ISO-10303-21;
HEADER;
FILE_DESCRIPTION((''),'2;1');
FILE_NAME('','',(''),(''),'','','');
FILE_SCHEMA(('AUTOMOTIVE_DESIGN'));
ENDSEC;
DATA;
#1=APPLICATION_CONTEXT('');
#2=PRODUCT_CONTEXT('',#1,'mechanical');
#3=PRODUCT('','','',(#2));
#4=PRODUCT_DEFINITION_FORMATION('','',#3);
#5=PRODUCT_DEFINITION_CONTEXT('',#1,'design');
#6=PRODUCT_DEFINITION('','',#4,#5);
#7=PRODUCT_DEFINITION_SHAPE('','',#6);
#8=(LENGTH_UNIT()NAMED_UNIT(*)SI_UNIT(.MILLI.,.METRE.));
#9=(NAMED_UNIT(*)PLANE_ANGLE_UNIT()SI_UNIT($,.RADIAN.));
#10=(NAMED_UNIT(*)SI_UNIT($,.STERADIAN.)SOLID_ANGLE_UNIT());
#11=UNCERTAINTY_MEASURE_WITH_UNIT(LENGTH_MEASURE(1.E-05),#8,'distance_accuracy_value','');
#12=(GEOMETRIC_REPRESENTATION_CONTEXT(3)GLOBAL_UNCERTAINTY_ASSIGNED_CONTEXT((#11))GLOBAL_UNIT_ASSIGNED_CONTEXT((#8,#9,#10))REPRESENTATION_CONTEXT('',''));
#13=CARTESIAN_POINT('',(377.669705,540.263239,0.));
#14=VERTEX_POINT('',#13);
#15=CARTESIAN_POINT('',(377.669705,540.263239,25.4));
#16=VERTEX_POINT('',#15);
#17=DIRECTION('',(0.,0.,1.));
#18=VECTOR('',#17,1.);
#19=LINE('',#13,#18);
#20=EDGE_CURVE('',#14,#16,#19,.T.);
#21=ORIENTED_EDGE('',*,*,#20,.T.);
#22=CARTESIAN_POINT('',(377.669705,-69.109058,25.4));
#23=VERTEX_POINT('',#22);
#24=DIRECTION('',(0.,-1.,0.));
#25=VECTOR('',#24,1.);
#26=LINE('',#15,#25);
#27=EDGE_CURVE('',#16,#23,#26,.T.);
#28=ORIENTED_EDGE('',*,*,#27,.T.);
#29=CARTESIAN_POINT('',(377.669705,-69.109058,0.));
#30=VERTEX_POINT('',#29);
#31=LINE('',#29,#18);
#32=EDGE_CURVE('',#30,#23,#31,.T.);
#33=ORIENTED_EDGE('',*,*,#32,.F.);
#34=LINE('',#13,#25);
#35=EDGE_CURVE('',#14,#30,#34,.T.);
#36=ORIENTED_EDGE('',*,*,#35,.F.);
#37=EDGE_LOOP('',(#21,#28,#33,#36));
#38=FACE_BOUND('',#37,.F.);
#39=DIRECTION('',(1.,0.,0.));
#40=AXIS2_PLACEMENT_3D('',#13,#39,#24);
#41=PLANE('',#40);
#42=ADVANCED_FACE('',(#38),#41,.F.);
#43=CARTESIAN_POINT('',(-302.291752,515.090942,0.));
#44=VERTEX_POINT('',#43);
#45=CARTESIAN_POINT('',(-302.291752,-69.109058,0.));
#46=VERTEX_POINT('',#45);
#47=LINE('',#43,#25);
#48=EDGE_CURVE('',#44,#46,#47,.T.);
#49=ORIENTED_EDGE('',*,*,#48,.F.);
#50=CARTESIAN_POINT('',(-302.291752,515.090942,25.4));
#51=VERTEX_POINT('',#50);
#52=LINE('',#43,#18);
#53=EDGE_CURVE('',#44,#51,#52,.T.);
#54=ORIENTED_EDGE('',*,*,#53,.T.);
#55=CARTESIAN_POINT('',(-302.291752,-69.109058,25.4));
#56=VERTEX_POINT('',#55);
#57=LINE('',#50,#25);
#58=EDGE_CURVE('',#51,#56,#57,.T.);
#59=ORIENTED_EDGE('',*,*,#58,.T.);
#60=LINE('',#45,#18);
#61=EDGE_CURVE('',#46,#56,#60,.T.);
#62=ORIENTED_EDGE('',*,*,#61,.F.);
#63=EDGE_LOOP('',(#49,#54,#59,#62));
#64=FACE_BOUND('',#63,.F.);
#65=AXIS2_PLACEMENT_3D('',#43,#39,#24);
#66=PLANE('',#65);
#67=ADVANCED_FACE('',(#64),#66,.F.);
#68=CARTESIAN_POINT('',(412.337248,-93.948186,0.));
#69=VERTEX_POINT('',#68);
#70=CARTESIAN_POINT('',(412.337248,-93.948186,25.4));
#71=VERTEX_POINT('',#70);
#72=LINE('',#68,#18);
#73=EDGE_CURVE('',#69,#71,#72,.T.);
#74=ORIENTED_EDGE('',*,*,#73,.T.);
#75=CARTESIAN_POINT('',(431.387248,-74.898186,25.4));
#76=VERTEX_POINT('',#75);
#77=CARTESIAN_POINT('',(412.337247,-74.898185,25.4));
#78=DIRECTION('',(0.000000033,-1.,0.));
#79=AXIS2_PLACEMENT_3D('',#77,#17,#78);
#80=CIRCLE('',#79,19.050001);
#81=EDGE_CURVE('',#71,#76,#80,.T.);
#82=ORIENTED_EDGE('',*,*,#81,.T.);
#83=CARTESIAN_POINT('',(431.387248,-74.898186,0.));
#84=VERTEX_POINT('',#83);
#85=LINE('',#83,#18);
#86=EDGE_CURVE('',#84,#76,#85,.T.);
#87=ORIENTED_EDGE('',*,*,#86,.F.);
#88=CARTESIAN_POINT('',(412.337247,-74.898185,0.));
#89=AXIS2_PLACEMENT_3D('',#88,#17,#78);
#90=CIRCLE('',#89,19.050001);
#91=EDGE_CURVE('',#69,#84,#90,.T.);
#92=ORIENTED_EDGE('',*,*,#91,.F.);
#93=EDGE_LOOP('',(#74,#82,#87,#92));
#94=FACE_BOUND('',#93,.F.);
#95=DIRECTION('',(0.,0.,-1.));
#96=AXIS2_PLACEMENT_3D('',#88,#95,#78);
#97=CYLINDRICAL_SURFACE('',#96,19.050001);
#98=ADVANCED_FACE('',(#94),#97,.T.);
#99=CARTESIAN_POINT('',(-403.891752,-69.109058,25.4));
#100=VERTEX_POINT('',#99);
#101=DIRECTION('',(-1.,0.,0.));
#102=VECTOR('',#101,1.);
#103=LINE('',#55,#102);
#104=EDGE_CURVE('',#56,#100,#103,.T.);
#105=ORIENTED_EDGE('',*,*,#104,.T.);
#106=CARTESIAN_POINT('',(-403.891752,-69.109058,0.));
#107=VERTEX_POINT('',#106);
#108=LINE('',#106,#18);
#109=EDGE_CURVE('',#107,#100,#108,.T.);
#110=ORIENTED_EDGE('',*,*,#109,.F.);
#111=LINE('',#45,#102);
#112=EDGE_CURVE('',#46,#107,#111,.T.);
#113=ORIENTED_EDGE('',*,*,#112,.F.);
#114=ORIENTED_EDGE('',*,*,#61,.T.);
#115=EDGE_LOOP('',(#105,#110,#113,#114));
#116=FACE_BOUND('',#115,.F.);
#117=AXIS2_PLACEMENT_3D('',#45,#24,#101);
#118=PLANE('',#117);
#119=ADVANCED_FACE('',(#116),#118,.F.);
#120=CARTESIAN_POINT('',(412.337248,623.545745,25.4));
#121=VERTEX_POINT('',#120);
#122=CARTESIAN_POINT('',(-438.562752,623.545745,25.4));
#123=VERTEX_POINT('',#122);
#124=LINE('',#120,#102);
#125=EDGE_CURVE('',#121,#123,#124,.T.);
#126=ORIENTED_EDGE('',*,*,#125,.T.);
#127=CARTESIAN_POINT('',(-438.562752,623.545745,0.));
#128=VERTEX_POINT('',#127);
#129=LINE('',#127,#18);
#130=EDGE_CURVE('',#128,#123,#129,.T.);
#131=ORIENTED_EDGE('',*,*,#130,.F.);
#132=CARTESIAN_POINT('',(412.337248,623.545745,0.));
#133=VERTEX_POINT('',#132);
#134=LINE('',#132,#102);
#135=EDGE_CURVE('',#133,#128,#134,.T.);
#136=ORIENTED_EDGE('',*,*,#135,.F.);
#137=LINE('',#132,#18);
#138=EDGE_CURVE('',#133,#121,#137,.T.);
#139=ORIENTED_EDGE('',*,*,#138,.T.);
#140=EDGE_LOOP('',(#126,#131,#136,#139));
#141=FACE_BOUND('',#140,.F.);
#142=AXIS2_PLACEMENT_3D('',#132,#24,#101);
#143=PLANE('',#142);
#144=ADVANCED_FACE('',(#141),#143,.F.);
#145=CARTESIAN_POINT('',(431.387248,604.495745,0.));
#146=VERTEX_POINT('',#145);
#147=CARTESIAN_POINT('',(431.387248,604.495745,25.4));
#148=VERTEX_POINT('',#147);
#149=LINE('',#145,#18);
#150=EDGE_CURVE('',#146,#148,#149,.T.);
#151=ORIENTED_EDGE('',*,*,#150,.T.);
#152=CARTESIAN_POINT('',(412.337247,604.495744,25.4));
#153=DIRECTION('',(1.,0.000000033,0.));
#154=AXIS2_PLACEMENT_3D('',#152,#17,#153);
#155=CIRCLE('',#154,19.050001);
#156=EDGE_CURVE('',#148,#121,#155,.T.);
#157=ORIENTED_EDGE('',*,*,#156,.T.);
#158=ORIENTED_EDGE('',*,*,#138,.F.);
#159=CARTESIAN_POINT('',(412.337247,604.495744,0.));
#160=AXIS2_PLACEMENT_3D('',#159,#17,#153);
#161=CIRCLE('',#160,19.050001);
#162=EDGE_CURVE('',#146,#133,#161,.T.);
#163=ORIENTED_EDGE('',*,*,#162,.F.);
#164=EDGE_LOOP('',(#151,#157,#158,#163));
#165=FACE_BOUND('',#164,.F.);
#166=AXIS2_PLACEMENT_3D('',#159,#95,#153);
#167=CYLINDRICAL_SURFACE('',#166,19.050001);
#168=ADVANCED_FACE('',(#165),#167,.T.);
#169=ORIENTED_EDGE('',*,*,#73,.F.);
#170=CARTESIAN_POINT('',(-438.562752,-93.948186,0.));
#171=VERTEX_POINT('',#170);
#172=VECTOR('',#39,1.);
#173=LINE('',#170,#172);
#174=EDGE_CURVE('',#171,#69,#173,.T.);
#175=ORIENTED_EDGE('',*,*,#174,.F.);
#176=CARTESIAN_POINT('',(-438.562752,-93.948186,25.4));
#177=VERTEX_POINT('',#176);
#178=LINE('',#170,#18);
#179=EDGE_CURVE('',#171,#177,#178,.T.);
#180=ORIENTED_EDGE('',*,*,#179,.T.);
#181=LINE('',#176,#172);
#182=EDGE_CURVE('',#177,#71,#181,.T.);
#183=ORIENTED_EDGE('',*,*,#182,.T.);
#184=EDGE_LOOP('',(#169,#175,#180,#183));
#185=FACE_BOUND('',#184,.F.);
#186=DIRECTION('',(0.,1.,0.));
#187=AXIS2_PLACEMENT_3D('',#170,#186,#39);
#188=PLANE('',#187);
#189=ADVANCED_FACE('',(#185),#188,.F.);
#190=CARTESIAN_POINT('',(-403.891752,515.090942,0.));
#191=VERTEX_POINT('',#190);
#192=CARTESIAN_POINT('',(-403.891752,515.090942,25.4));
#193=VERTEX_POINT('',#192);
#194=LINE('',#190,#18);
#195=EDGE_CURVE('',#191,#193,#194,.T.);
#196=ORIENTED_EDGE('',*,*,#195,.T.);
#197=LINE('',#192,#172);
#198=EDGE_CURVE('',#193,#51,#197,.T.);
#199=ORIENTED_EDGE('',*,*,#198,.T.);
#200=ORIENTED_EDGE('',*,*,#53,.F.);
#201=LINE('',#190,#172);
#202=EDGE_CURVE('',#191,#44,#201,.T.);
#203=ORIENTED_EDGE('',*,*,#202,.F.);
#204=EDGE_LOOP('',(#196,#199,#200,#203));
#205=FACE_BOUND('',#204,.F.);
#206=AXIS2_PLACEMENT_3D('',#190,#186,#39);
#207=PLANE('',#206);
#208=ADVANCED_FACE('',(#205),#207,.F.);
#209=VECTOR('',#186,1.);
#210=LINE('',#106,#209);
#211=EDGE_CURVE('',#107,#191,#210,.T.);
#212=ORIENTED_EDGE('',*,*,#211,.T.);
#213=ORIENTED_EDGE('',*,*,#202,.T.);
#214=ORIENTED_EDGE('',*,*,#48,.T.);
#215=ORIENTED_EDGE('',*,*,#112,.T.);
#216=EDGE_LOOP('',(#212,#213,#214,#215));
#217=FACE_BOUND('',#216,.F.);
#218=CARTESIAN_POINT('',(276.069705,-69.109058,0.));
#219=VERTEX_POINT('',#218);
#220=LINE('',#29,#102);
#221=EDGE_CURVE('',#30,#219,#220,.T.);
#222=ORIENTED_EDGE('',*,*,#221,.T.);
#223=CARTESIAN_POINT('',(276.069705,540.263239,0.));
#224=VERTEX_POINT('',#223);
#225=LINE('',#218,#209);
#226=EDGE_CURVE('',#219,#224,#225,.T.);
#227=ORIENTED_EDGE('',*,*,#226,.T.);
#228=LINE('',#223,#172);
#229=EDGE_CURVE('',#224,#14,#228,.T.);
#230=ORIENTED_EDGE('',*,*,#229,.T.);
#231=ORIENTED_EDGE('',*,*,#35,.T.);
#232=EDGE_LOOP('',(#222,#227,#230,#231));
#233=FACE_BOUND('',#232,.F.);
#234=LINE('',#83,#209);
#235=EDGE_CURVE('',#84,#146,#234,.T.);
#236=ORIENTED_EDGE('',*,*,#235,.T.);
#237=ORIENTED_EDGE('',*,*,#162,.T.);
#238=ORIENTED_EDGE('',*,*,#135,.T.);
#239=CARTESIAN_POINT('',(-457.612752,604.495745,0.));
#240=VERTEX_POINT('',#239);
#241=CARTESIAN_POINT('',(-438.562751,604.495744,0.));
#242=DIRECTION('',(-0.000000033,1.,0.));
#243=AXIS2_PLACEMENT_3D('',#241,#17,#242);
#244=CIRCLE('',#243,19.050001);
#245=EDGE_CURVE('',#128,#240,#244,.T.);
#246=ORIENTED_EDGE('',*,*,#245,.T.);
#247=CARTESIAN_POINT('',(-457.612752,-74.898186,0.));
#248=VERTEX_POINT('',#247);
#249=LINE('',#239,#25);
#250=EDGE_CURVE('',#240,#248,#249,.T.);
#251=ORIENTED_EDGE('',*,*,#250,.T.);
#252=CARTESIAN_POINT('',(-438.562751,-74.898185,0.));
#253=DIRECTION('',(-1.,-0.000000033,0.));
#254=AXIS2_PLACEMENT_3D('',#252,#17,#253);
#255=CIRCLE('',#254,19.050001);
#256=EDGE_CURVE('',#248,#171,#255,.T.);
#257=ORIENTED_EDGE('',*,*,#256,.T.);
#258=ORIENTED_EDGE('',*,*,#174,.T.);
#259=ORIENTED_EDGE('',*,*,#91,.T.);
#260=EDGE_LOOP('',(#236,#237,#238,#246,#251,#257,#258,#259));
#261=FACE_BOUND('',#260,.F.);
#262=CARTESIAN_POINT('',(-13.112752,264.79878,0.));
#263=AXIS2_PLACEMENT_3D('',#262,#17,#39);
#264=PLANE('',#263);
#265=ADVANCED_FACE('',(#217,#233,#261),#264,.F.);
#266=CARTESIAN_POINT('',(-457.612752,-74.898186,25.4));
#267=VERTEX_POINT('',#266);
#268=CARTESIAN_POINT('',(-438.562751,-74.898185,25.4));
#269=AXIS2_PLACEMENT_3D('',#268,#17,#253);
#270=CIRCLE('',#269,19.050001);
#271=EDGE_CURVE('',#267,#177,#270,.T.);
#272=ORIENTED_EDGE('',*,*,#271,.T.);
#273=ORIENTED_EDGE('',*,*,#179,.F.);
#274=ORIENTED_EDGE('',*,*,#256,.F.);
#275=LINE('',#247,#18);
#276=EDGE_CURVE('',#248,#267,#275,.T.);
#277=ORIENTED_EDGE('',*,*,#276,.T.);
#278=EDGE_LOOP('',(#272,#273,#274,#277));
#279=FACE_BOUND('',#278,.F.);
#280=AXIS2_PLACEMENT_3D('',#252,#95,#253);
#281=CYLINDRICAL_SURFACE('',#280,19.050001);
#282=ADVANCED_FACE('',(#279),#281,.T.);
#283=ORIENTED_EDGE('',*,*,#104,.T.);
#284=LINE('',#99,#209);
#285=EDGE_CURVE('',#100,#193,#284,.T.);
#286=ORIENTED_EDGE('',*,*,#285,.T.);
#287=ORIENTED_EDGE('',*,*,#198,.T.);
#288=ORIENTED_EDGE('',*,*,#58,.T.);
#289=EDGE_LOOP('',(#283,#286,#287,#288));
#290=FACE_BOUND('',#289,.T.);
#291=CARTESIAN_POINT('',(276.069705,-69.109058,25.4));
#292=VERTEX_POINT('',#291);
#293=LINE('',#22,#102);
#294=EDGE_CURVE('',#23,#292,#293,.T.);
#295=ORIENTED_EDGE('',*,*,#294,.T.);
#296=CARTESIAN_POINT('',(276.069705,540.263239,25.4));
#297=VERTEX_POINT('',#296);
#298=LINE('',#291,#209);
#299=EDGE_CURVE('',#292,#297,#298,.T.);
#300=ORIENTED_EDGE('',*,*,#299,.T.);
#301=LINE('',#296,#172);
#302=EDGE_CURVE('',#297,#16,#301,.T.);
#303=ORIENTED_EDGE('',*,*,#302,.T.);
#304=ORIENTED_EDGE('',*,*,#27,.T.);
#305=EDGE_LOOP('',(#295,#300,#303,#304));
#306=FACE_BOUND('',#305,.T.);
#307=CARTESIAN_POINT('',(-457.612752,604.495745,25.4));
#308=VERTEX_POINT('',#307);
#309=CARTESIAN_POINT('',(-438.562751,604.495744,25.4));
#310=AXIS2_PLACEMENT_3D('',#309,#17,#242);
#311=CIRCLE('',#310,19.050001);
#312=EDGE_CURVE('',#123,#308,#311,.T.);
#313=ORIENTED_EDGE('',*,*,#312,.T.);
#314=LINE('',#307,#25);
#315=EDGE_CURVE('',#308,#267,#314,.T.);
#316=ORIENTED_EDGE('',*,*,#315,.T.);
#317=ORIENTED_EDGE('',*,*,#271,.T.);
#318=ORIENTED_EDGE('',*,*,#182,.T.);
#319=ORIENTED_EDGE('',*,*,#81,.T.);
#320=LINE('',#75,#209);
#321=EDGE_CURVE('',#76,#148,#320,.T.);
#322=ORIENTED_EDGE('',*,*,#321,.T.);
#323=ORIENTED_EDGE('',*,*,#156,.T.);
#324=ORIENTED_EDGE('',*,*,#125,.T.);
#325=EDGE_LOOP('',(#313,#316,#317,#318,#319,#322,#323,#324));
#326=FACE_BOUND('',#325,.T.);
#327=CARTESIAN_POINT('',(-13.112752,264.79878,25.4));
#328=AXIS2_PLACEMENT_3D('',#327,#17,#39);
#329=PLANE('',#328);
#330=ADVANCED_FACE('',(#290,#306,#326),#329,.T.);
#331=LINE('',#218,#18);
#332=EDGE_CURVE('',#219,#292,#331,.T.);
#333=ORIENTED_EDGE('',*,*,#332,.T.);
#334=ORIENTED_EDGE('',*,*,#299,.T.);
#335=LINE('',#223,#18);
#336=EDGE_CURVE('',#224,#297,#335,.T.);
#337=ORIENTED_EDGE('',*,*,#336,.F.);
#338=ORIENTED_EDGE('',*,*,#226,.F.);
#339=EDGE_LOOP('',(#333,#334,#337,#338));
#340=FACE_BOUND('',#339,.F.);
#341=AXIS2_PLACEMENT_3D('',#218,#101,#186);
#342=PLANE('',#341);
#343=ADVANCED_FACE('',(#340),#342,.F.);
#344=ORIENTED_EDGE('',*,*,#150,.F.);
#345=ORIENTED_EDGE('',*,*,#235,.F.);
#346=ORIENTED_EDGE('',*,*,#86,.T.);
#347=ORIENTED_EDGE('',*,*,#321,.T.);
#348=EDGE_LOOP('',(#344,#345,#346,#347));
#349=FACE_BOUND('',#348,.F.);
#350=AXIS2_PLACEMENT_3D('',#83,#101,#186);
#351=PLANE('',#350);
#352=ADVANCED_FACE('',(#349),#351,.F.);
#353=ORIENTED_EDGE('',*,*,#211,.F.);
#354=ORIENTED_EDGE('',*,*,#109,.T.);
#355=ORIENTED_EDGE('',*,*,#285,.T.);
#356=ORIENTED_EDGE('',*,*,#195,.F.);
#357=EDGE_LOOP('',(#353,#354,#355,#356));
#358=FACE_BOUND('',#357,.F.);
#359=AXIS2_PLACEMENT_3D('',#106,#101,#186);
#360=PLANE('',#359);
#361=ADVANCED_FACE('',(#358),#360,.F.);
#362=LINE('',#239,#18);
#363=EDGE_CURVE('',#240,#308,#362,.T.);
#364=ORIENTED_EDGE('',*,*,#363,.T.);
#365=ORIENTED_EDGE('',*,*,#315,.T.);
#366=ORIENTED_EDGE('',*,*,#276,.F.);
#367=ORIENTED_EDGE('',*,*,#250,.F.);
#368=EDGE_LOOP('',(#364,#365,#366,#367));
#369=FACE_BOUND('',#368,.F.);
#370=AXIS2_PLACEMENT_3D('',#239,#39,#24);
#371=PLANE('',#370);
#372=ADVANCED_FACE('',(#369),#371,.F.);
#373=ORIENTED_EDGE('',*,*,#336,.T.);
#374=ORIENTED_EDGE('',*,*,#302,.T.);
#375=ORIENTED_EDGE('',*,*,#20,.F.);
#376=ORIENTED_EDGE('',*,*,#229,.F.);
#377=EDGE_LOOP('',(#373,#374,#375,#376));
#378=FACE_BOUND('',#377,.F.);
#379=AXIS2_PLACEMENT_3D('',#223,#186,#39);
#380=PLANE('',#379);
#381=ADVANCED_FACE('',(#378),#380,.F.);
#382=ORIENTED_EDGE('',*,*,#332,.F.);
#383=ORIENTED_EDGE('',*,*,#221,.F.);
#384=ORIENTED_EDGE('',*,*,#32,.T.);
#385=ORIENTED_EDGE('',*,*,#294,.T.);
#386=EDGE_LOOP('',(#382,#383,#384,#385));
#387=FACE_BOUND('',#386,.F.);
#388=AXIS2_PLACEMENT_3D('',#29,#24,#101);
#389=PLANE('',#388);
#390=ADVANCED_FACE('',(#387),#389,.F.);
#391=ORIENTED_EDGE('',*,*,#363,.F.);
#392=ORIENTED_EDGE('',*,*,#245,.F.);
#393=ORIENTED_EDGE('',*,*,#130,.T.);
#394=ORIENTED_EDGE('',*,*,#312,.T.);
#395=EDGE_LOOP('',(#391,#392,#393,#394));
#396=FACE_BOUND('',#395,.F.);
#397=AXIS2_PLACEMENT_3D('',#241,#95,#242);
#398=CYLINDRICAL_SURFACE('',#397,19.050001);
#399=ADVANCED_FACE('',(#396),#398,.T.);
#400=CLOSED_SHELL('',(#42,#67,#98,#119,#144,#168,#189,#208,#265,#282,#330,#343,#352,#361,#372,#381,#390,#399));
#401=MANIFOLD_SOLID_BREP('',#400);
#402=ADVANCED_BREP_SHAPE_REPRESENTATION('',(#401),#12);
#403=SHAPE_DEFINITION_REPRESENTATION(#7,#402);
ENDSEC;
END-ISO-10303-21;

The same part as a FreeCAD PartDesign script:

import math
import FreeCAD as App
import Part
import Sketcher

V = App.Vector
Q = App.Units.Quantity

doc = App.newDocument("Part")
params = doc.addObject("Spreadsheet::Sheet", "Params")
for row, (alias, value) in enumerate([
    ("sketch1_width", "4 in"),
    ("sketch1_height", "23 in"),
    ("sketch1_radius", "0.75 in"),
    ("sketch1_width2", "33.5 in"),
    ("pad1_length", "1 in"),
], start=1):
    params.set(f"A{row}", alias)
    params.set(f"B{row}", "=" + value)
    params.setAlias(f"B{row}", alias)

body = doc.addObject("PartDesign::Body", "Body")

# Sketch on XY plane
sketch1 = body.newObject("Sketcher::SketchObject", "Sketch")
sketch1.AttachmentSupport = (doc.getObject("XY_Plane"), [""])
sketch1.MapMode = "FlatFace"
sketch1.addGeometry([
    Part.ArcOfCircle(Part.Circle(V(-438.562751, -74.898185, 0), V(0, 0, 1), 19.050001), math.radians(-179.999998), math.radians(-90.000002)),  # 0
    Part.LineSegment(V(-438.562752, -93.948186, 0), V(412.337248, -93.948186, 0)),  # 1
    Part.ArcOfCircle(Part.Circle(V(412.337247, -74.898185, 0), V(0, 0, 1), 19.050001), math.radians(-89.999998), math.radians(-0.000002)),  # 2
    Part.LineSegment(V(431.387248, -74.898186, 0), V(431.387248, 604.495745, 0)),  # 3
    Part.ArcOfCircle(Part.Circle(V(412.337247, 604.495744, 0), V(0, 0, 1), 19.050001), math.radians(0.000002), math.radians(89.999998)),  # 4
    Part.LineSegment(V(412.337248, 623.545745, 0), V(-438.562752, 623.545745, 0)),  # 5
    Part.ArcOfCircle(Part.Circle(V(-438.562751, 604.495744, 0), V(0, 0, 1), 19.050001), math.radians(90.000002), math.radians(179.999998)),  # 6
    Part.LineSegment(V(-457.612752, 604.495745, 0), V(-457.612752, -74.898186, 0)),  # 7
    Part.LineSegment(V(-302.291752, -69.109058, 0), V(-403.891752, -69.109058, 0)),  # 8
    Part.LineSegment(V(-403.891752, -69.109058, 0), V(-403.891752, 515.090942, 0)),  # 9
    Part.LineSegment(V(-403.891752, 515.090942, 0), V(-302.291752, 515.090942, 0)),  # 10
    Part.LineSegment(V(-302.291752, 515.090942, 0), V(-302.291752, -69.109058, 0)),  # 11
    Part.LineSegment(V(377.669705, 540.263239, 0), V(377.669705, -69.109058, 0)),  # 12
    Part.LineSegment(V(377.669705, -69.109058, 0), V(276.069705, -69.109058, 0)),  # 13
    Part.LineSegment(V(276.069705, -69.109058, 0), V(276.069705, 540.263239, 0)),  # 14
    Part.LineSegment(V(276.069705, 540.263239, 0), V(377.669705, 540.263239, 0)),  # 15
], False)
sketch1.addConstraint([
    Sketcher.Constraint("Tangent", 0, 2, 1, 1),
    Sketcher.Constraint("Tangent", 1, 2, 2, 1),
    Sketcher.Constraint("Tangent", 2, 2, 3, 1),
    Sketcher.Constraint("Tangent", 3, 2, 4, 1),
    Sketcher.Constraint("Tangent", 4, 2, 5, 1),
    Sketcher.Constraint("Tangent", 5, 2, 6, 1),
    Sketcher.Constraint("Tangent", 6, 2, 7, 1),
    Sketcher.Constraint("Tangent", 7, 2, 0, 1),
    Sketcher.Constraint("Coincident", 8, 2, 9, 1),
    Sketcher.Constraint("Coincident", 9, 2, 10, 1),
    Sketcher.Constraint("Coincident", 10, 2, 11, 1),
    Sketcher.Constraint("Coincident", 11, 2, 8, 1),
    Sketcher.Constraint("Coincident", 12, 2, 13, 1),
    Sketcher.Constraint("Coincident", 13, 2, 14, 1),
    Sketcher.Constraint("Coincident", 14, 2, 15, 1),
    Sketcher.Constraint("Coincident", 15, 2, 12, 1),
    Sketcher.Constraint("Horizontal", 1),
    Sketcher.Constraint("Vertical", 3),
    Sketcher.Constraint("Horizontal", 5),
    Sketcher.Constraint("Vertical", 7),
    Sketcher.Constraint("Horizontal", 8),
    Sketcher.Constraint("Vertical", 9),
    Sketcher.Constraint("Horizontal", 10),
    Sketcher.Constraint("Vertical", 11),
    Sketcher.Constraint("Vertical", 12),
    Sketcher.Constraint("Horizontal", 13),
    Sketcher.Constraint("Vertical", 14),
    Sketcher.Constraint("Horizontal", 15),
    Sketcher.Constraint("Equal", 0, 2),
    Sketcher.Constraint("Equal", 2, 4),
    Sketcher.Constraint("Equal", 4, 6),
    Sketcher.Constraint("Horizontal", 11, 2, 12, 2),
    Sketcher.Constraint("Equal", 10, 13),
    Sketcher.Constraint("DistanceX", 8, 2, 8, 1, Q("4 in")),
    Sketcher.Constraint("DistanceY", 9, 1, 9, 2, Q("23 in")),
    Sketcher.Constraint("Radius", 0, Q("0.75 in")),
    Sketcher.Constraint("DistanceX", 1, 1, 1, 2, Q("33.5 in")),
    Sketcher.Constraint("DistanceX", 0, 3, 8, 2, Q("1.365 in")),
    Sketcher.Constraint("DistanceY", 3, 1, 3, 2, Q("679.393931 mm")),
    Sketcher.Constraint("DistanceY", 12, 2, 12, 1, Q("609.372297 mm")),
    Sketcher.Constraint("DistanceX", 0, 3, -1, 1, Q("438.562751 mm")),
    Sketcher.Constraint("DistanceY", 8, 2, -1, 1, Q("69.109058 mm")),
    Sketcher.Constraint("DistanceY", 1, 2, 12, 2, Q("24.839128 mm")),
    Sketcher.Constraint("DistanceX", -1, 1, 12, 2, Q("377.669705 mm")),
])
sketch1.setExpression("Constraints[33]", "Params.sketch1_width")
sketch1.setExpression("Constraints[34]", "Params.sketch1_height")
sketch1.setExpression("Constraints[35]", "Params.sketch1_radius")
sketch1.setExpression("Constraints[36]", "Params.sketch1_width2")
pad1 = body.newObject("PartDesign::Pad", "Pad")
pad1.Profile = sketch1
pad1.setExpression("Length", "Params.pad1_length")

doc.recompute()
